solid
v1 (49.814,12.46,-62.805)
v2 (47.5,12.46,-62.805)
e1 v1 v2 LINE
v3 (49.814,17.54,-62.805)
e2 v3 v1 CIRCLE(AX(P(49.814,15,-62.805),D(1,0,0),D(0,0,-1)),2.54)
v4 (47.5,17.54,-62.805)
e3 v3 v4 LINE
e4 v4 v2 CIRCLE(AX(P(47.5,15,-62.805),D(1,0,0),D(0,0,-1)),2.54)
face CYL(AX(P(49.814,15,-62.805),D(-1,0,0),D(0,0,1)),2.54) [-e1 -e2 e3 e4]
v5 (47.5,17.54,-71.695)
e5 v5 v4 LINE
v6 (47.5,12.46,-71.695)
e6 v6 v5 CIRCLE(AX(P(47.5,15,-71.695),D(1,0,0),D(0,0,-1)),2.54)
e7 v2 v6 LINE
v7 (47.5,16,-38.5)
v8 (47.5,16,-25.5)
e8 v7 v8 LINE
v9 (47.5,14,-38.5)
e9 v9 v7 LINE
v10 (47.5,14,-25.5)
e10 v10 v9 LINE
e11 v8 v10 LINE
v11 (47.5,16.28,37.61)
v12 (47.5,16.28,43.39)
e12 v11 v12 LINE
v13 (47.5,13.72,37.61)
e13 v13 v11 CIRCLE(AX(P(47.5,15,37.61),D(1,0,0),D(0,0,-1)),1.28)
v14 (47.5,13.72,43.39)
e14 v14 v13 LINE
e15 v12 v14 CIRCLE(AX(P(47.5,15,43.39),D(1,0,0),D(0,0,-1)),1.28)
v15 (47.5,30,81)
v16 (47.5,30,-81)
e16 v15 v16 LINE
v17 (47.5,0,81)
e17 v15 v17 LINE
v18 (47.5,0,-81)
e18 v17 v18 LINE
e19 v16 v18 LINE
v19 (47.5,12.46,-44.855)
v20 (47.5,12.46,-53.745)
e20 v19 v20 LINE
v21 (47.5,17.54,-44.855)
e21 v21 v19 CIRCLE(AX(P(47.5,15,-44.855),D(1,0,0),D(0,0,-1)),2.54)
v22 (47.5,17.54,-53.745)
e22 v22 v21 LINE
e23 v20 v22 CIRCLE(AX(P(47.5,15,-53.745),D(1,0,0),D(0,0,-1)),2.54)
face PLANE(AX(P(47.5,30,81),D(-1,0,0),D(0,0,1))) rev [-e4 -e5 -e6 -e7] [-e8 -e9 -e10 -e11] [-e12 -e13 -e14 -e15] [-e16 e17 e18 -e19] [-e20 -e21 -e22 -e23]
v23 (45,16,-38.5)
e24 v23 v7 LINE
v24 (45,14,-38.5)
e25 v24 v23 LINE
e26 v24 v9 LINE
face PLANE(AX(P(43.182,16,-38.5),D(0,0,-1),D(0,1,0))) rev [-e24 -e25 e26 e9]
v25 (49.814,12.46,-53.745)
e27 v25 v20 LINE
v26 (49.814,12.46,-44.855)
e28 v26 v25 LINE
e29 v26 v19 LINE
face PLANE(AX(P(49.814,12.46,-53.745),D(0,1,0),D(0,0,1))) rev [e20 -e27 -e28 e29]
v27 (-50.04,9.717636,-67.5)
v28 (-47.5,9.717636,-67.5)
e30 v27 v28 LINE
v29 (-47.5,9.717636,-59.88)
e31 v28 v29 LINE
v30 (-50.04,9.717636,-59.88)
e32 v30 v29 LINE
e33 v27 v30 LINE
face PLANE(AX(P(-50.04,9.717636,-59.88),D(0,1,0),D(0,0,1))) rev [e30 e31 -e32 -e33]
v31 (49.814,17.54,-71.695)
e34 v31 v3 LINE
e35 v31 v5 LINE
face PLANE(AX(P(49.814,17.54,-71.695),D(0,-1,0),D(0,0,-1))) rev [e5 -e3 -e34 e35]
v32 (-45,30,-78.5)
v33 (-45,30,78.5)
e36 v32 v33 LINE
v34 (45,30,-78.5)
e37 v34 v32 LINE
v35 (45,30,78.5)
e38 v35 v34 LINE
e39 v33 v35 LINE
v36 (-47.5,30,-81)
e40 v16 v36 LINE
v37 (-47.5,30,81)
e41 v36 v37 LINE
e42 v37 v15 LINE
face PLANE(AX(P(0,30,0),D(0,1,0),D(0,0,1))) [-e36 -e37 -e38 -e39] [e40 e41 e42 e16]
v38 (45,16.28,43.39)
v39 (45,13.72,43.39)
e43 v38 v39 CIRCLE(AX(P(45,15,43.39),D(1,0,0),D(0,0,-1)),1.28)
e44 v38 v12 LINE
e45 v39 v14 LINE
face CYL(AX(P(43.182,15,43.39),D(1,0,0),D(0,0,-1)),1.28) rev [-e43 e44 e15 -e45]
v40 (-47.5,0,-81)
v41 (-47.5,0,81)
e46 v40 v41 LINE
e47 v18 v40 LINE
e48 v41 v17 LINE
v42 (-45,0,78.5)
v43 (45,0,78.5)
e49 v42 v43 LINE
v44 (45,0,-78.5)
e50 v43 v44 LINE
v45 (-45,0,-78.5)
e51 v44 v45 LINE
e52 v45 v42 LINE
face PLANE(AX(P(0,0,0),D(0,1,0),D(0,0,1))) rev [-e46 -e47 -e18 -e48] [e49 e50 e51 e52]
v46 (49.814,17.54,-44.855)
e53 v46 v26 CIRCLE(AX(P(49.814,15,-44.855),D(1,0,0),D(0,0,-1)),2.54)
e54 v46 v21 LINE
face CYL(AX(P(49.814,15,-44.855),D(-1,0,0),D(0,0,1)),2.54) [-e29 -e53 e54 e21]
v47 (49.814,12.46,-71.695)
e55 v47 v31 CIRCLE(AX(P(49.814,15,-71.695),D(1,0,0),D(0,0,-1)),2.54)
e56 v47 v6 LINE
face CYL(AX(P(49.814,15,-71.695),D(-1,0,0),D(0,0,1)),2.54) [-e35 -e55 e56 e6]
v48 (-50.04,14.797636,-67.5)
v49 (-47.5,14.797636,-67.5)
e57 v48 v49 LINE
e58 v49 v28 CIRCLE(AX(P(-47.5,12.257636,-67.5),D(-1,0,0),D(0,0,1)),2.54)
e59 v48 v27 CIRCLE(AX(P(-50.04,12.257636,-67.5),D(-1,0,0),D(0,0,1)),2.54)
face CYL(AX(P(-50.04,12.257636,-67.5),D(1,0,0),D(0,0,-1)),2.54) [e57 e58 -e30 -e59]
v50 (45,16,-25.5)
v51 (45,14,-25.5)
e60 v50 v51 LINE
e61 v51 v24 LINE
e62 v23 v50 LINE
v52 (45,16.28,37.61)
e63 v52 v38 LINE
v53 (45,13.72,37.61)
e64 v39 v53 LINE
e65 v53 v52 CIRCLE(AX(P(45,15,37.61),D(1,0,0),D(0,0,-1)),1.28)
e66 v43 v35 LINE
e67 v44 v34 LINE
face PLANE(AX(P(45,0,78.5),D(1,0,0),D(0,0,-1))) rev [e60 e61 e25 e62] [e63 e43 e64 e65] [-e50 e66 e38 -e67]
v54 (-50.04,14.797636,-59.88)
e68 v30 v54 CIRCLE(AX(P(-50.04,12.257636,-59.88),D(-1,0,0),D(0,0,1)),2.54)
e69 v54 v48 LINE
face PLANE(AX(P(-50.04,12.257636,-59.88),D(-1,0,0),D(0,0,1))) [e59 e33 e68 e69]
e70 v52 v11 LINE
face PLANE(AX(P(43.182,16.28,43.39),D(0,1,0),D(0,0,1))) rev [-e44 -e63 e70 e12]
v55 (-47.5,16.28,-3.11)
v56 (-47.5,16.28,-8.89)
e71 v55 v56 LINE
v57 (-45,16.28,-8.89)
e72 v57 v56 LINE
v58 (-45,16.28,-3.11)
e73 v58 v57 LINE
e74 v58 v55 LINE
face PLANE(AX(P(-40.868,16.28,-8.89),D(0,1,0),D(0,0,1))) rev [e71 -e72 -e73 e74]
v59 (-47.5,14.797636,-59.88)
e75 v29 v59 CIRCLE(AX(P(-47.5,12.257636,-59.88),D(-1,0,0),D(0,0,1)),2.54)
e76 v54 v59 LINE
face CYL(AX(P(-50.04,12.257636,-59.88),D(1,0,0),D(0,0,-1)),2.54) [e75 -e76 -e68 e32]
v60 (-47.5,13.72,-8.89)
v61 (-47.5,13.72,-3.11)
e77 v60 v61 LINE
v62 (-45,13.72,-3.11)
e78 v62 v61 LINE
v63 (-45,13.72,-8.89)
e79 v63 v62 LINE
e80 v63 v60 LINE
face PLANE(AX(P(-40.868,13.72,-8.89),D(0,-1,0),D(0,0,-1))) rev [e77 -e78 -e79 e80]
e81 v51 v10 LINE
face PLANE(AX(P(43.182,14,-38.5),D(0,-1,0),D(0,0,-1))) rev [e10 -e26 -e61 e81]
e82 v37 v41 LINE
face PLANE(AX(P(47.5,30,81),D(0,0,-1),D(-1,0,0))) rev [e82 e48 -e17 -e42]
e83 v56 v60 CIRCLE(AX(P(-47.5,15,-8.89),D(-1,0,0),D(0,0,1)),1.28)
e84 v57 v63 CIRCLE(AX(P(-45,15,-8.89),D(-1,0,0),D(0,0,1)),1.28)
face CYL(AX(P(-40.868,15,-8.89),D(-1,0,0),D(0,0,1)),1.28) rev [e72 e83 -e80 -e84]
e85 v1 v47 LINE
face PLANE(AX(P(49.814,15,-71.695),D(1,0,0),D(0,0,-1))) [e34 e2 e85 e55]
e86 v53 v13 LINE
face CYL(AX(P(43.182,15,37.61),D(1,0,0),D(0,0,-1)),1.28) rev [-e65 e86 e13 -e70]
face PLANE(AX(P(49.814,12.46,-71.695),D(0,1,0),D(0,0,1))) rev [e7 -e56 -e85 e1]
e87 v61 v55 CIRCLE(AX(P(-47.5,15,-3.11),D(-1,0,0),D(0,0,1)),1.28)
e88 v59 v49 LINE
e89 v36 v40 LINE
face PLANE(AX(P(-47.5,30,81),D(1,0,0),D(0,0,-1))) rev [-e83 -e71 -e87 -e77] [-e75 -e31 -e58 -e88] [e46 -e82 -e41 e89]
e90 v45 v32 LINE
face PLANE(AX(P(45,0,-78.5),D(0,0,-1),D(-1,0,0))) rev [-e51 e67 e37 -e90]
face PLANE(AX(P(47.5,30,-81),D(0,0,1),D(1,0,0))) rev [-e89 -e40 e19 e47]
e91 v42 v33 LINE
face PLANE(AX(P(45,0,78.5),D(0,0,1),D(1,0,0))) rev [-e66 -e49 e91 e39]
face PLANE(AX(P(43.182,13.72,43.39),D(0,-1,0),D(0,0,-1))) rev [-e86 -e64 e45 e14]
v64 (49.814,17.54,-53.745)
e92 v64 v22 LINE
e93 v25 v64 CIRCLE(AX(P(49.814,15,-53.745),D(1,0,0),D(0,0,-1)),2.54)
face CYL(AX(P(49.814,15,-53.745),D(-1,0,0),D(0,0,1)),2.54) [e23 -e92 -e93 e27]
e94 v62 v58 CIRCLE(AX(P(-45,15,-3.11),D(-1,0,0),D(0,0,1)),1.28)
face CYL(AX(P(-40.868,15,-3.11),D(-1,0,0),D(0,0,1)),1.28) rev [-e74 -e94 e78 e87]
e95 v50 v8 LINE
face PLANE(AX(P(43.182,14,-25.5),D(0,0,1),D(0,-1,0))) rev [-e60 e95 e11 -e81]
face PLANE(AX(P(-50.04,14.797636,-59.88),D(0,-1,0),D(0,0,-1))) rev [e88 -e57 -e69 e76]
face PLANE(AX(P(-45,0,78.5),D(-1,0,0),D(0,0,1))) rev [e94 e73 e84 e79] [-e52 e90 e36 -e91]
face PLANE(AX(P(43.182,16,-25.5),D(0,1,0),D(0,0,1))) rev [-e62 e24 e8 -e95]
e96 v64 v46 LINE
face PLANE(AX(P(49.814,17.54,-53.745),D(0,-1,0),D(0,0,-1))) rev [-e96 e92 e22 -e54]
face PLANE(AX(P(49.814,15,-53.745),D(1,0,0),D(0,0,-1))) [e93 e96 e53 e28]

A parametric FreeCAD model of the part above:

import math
import FreeCAD as App
import Part
import Sketcher

doc = App.newDocument("Part")
body = doc.addObject("PartDesign::Body", "Body")

# Sketch on XZ plane
sketch1 = body.newObject("Sketcher::SketchObject", "Sketch")
sketch1.AttachmentSupport = (doc.getObject("XZ_Plane"), [""])
sketch1.MapMode = "FlatFace"
sketch1.addGeometry(Part.LineSegment(App.Vector(-47, -81, 0), App.Vector(-47, 81, 0)), False)
sketch1.addGeometry(Part.LineSegment(App.Vector(-47, 81, 0), App.Vector(47, 81, 0)), False)
sketch1.addGeometry(Part.LineSegment(App.Vector(47, 81, 0), App.Vector(47, -81, 0)), False)
sketch1.addGeometry(Part.LineSegment(App.Vector(47, -81, 0), App.Vector(-47, -81, 0)), False)
sketch1.addConstraint(Sketcher.Constraint("Coincident", 0, 2, 1, 1))
sketch1.addConstraint(Sketcher.Constraint("Coincident", 1, 2, 2, 1))
sketch1.addConstraint(Sketcher.Constraint("Coincident", 2, 2, 3, 1))
sketch1.addConstraint(Sketcher.Constraint("Coincident", 3, 2, 0, 1))
sketch1.addConstraint(Sketcher.Constraint("Vertical", 0))
sketch1.addConstraint(Sketcher.Constraint("Horizontal", 1))
sketch1.addConstraint(Sketcher.Constraint("Vertical", 2))
sketch1.addConstraint(Sketcher.Constraint("Horizontal", 3))
sketch1.addConstraint(Sketcher.Constraint("Symmetric", 0, 2, 2, 2, -1, 1))
sketch1.addConstraint(Sketcher.Constraint("DistanceX", 1, 1, 1, 2, 95.0))
sketch1.addConstraint(Sketcher.Constraint("DistanceY", 0, 1, 0, 2, 162.0))
pad1 = body.newObject("PartDesign::Pad", "Pad")
pad1.Profile = sketch1
pad1.Length = 30
pad1.Reversed = True

# Sketch on XZ plane
sketch2 = body.newObject("Sketcher::SketchObject", "Sketch001")
sketch2.AttachmentSupport = (doc.getObject("XZ_Plane"), [""])
sketch2.MapMode = "FlatFace"
sketch2.AttachmentOffset = App.Placement(App.Vector(0, 0, -30), App.Rotation())
sketch2.addGeometry(Part.LineSegment(App.Vector(-45, -78, 0), App.Vector(-45, 78, 0)), False)
sketch2.addGeometry(Part.LineSegment(App.Vector(-45, 78, 0), App.Vector(45, 78, 0)), False)
sketch2.addGeometry(Part.LineSegment(App.Vector(45, 78, 0), App.Vector(45, -78, 0)), False)
sketch2.addGeometry(Part.LineSegment(App.Vector(45, -78, 0), App.Vector(-45, -78, 0)), False)
sketch2.addConstraint(Sketcher.Constraint("Coincident", 0, 2, 1, 1))
sketch2.addConstraint(Sketcher.Constraint("Coincident", 1, 2, 2, 1))
sketch2.addConstraint(Sketcher.Constraint("Coincident", 2, 2, 3, 1))
sketch2.addConstraint(Sketcher.Constraint("Coincident", 3, 2, 0, 1))
sketch2.addConstraint(Sketcher.Constraint("Vertical", 0))
sketch2.addConstraint(Sketcher.Constraint("Horizontal", 1))
sketch2.addConstraint(Sketcher.Constraint("Vertical", 2))
sketch2.addConstraint(Sketcher.Constraint("Horizontal", 3))
sketch2.addConstraint(Sketcher.Constraint("Symmetric", 0, 2, 2, 2, -1, 1))
sketch2.addConstraint(Sketcher.Constraint("DistanceX", 1, 1, 1, 2, 90.0))
sketch2.addConstraint(Sketcher.Constraint("DistanceY", 0, 1, 0, 2, 157.0))
pocket1 = body.newObject("PartDesign::Pocket", "Pocket")
pocket1.Profile = sketch2
pocket1.Length = 30
pocket1.Reversed = True

# Sketch on YZ plane
sketch3 = body.newObject("Sketcher::SketchObject", "Sketch002")
sketch3.AttachmentSupport = (doc.getObject("YZ_Plane"), [""])
sketch3.MapMode = "FlatFace"
sketch3.AttachmentOffset = App.Placement(App.Vector(0, 0, 47.5), App.Rotation())
sketch3.addGeometry(Part.LineSegment(App.Vector(12.5, -62.8, 0), App.Vector(12.5, -71.7, 0)), False)
sketch3.addGeometry(Part.ArcOfCircle(Part.Circle(App.Vector(15, -71.7, 0), App.Vector(0, 0, 1), 2.5), math.radians(180), math.radians(360)), False)
sketch3.addGeometry(Part.LineSegment(App.Vector(17.5, -71.7, 0), App.Vector(17.5, -62.8, 0)), False)
sketch3.addGeometry(Part.ArcOfCircle(Part.Circle(App.Vector(15, -62.8, 0), App.Vector(0, 0, 1), 2.5), math.radians(0), math.radians(180)), False)
sketch3.addGeometry(Part.LineSegment(App.Vector(12.5, -44.9, 0), App.Vector(12.5, -53.7, 0)), False)
sketch3.addGeometry(Part.ArcOfCircle(Part.Circle(App.Vector(15, -53.7, 0), App.Vector(0, 0, 1), 2.5), math.radians(180), math.radians(360)), False)
sketch3.addGeometry(Part.LineSegment(App.Vector(17.5, -53.7, 0), App.Vector(17.5, -44.9, 0)), False)
sketch3.addGeometry(Part.ArcOfCircle(Part.Circle(App.Vector(15, -44.9, 0), App.Vector(0, 0, 1), 2.5), math.radians(0), math.radians(180)), False)
sketch3.addGeometry(Part.LineSegment(App.Vector(16, -25.5, 0), App.Vector(14, -25.5, 0)), False)
sketch3.addGeometry(Part.LineSegment(App.Vector(14, -25.5, 0), App.Vector(14, -38.5, 0)), False)
sketch3.addGeometry(Part.LineSegment(App.Vector(14, -38.5, 0), App.Vector(16, -38.5, 0)), False)
sketch3.addGeometry(Part.LineSegment(App.Vector(16, -38.5, 0), App.Vector(16, -25.5, 0)), False)
sketch3.addGeometry(Part.LineSegment(App.Vector(13.7, 43.4, 0), App.Vector(13.7, 37.6, 0)), False)
sketch3.addGeometry(Part.ArcOfCircle(Part.Circle(App.Vector(15, 37.6, 0), App.Vector(0, 0, 1), 1.3), math.radians(180), math.radians(360)), False)
sketch3.addGeometry(Part.LineSegment(App.Vector(16.3, 37.6, 0), App.Vector(16.3, 43.4, 0)), False)
sketch3.addGeometry(Part.ArcOfCircle(Part.Circle(App.Vector(15, 43.4, 0), App.Vector(0, 0, 1), 1.3), math.radians(0), math.radians(180)), False)
sketch3.addConstraint(Sketcher.Constraint("Tangent", 0, 2, 1, 1))
sketch3.addConstraint(Sketcher.Constraint("Tangent", 1, 2, 2, 1))
sketch3.addConstraint(Sketcher.Constraint("Tangent", 2, 2, 3, 1))
sketch3.addConstraint(Sketcher.Constraint("Tangent", 3, 2, 0, 1))
sketch3.addConstraint(Sketcher.Constraint("Tangent", 4, 2, 5, 1))
sketch3.addConstraint(Sketcher.Constraint("Tangent", 5, 2, 6, 1))
sketch3.addConstraint(Sketcher.Constraint("Tangent", 6, 2, 7, 1))
sketch3.addConstraint(Sketcher.Constraint("Tangent", 7, 2, 4, 1))
sketch3.addConstraint(Sketcher.Constraint("Coincident", 8, 2, 9, 1))
sketch3.addConstraint(Sketcher.Constraint("Coincident", 9, 2, 10, 1))
sketch3.addConstraint(Sketcher.Constraint("Coincident", 10, 2, 11, 1))
sketch3.addConstraint(Sketcher.Constraint("Coincident", 11, 2, 8, 1))
sketch3.addConstraint(Sketcher.Constraint("Tangent", 12, 2, 13, 1))
sketch3.addConstraint(Sketcher.Constraint("Tangent", 13, 2, 14, 1))
sketch3.addConstraint(Sketcher.Constraint("Tangent", 14, 2, 15, 1))
sketch3.addConstraint(Sketcher.Constraint("Tangent", 15, 2, 12, 1))
sketch3.addConstraint(Sketcher.Constraint("Vertical", 0))
sketch3.addConstraint(Sketcher.Constraint("Vertical", 2))
sketch3.addConstraint(Sketcher.Constraint("Vertical", 4))
sketch3.addConstraint(Sketcher.Constraint("Vertical", 6))
sketch3.addConstraint(Sketcher.Constraint("Horizontal", 8))
sketch3.addConstraint(Sketcher.Constraint("Vertical", 9))
sketch3.addConstraint(Sketcher.Constraint("Horizontal", 10))
sketch3.addConstraint(Sketcher.Constraint("Vertical", 11))
sketch3.addConstraint(Sketcher.Constraint("Vertical", 12))
sketch3.addConstraint(Sketcher.Constraint("Vertical", 14))
sketch3.addConstraint(Sketcher.Constraint("Equal", 3, 5))
sketch3.addConstraint(Sketcher.Constraint("Vertical", 3, 3, 5, 3))
sketch3.addConstraint(Sketcher.Constraint("Vertical", 7, 3, 13, 3))
sketch3.addConstraint(Sketcher.Constraint("Equal", 2, 4))
sketch3.addConstraint(Sketcher.Constraint("DistanceX", 8, 2, 8, 1, 2.0))
sketch3.addConstraint(Sketcher.Constraint("DistanceY", 9, 2, 9, 1, 13.0))
sketch3.addConstraint(Sketcher.Constraint("Radius", 1, 2.54))
sketch3.addConstraint(Sketcher.Constraint("Radius", 13, 1.28))
sketch3.addConstraint(Sketcher.Constraint("DistanceX", -1, 1, 1, 3, 15.0))
sketch3.addConstraint(Sketcher.Constraint("DistanceX", -1, 1, 8, 2, 14.0))
sketch3.addConstraint(Sketcher.Constraint("DistanceY", 0, 2, 0, 1, 8.89))
sketch3.addConstraint(Sketcher.Constraint("DistanceY", 12, 2, 12, 1, 5.78))
sketch3.addConstraint(Sketcher.Constraint("DistanceY", 8, 2, -1, 1, 25.5))
sketch3.addConstraint(Sketcher.Constraint("DistanceY", -1, 1, 13, 3, 37.61))
sketch3.addConstraint(Sketcher.Constraint("DistanceY", 3, 3, 5, 3, 9.06))
sketch3.addConstraint(Sketcher.Constraint("DistanceY", 1, 3, -1, 1, 71.695))
pad2 = body.newObject("PartDesign::Pad", "Pad001")
pad2.Profile = sketch3
pad2.Length = 2.314

# Sketch on YZ plane
sketch4 = body.newObject("Sketcher::SketchObject", "Sketch003")
sketch4.AttachmentSupport = (doc.getObject("YZ_Plane"), [""])
sketch4.MapMode = "FlatFace"
sketch4.AttachmentOffset = App.Placement(App.Vector(0, 0, 49.814), App.Rotation())
sketch4.addGeometry(Part.LineSegment(App.Vector(16, -25.5, 0), App.Vector(14, -25.5, 0)), False)
sketch4.addGeometry(Part.LineSegment(App.Vector(14, -25.5, 0), App.Vector(14, -38.5, 0)), False)
sketch4.addGeometry(Part.LineSegment(App.Vector(14, -38.5, 0), App.Vector(16, -38.5, 0)), False)
sketch4.addGeometry(Part.LineSegment(App.Vector(16, -38.5, 0), App.Vector(16, -25.5, 0)), False)
sketch4.addConstraint(Sketcher.Constraint("Coincident", 0, 2, 1, 1))
sketch4.addConstraint(Sketcher.Constraint("Coincident", 1, 2, 2, 1))
sketch4.addConstraint(Sketcher.Constraint("Coincident", 2, 2, 3, 1))
sketch4.addConstraint(Sketcher.Constraint("Coincident", 3, 2, 0, 1))
sketch4.addConstraint(Sketcher.Constraint("Horizontal", 0))
sketch4.addConstraint(Sketcher.Constraint("Vertical", 1))
sketch4.addConstraint(Sketcher.Constraint("Horizontal", 2))
sketch4.addConstraint(Sketcher.Constraint("Vertical", 3))
sketch4.addConstraint(Sketcher.Constraint("DistanceX", 0, 2, 0, 1, 2.0))
sketch4.addConstraint(Sketcher.Constraint("DistanceY", 1, 2, 1, 1, 13.0))
sketch4.addConstraint(Sketcher.Constraint("DistanceX", -1, 1, 0, 2, 14.0))
sketch4.addConstraint(Sketcher.Constraint("DistanceY", 0, 2, -1, 1, 25.5))
pocket2 = body.newObject("PartDesign::Pocket", "Pocket001")
pocket2.Profile = sketch4
pocket2.Length = 6.632

# Sketch on YZ plane
sketch5 = body.newObject("Sketcher::SketchObject", "Sketch004")
sketch5.AttachmentSupport = (doc.getObject("YZ_Plane"), [""])
sketch5.MapMode = "FlatFace"
sketch5.AttachmentOffset = App.Placement(App.Vector(0, 0, 43.182), App.Rotation())
sketch5.addGeometry(Part.LineSegment(App.Vector(16.3, 37.6, 0), App.Vector(16.3, 43.4, 0)), False)
sketch5.addGeometry(Part.ArcOfCircle(Part.Circle(App.Vector(15, 43.4, 0), App.Vector(0, 0, 1), 1.3), math.radians(0), math.radians(90)), False)
sketch5.addGeometry(Part.ArcOfCircle(Part.Circle(App.Vector(15, 43.4, 0), App.Vector(0, 0, 1), 1.3), math.radians(90), math.radians(180)), False)
sketch5.addGeometry(Part.LineSegment(App.Vector(13.7, 43.4, 0), App.Vector(13.7, 37.6, 0)), False)
sketch5.addGeometry(Part.ArcOfCircle(Part.Circle(App.Vector(15, 37.6, 0), App.Vector(0, 0, 1), 1.3), math.radians(180), math.radians(270)), False)
sketch5.addGeometry(Part.ArcOfCircle(Part.Circle(App.Vector(15, 37.6, 0), App.Vector(0, 0, 1), 1.3), math.radians(-90), math.radians(0)), False)
sketch5.addConstraint(Sketcher.Constraint("Tangent", 0, 2, 1, 1))
sketch5.addConstraint(Sketcher.Constraint("Tangent", 1, 2, 2, 1))
sketch5.addConstraint(Sketcher.Constraint("Tangent", 2, 2, 3, 1))
sketch5.addConstraint(Sketcher.Constraint("Tangent", 3, 2, 4, 1))
sketch5.addConstraint(Sketcher.Constraint("Tangent", 4, 2, 5, 1))
sketch5.addConstraint(Sketcher.Constraint("Tangent", 5, 2, 0, 1))
sketch5.addConstraint(Sketcher.Constraint("Vertical", 0))
sketch5.addConstraint(Sketcher.Constraint("Vertical", 3))
sketch5.addConstraint(Sketcher.Constraint("Equal", 1, 2))
sketch5.addConstraint(Sketcher.Constraint("Equal", 2, 4))
sketch5.addConstraint(Sketcher.Constraint("Vertical", 5, 3, 1, 2))
sketch5.addConstraint(Sketcher.Constraint("Vertical", 1, 2, 4, 2))
sketch5.addConstraint(Sketcher.Constraint("Radius", 1, 1.28))
sketch5.addConstraint(Sketcher.Constraint("DistanceX", -1, 1, 1, 3, 15.0))
sketch5.addConstraint(Sketcher.Constraint("DistanceY", 0, 1, 0, 2, 5.78))
sketch5.addConstraint(Sketcher.Constraint("DistanceY", -1, 1, 1, 3, 43.39))
pocket3 = body.newObject("PartDesign::Pocket", "Pocket002")
pocket3.Profile = sketch5
pocket3.Length = 6.632
pocket3.Reversed = True

# Sketch on YZ plane
sketch6 = body.newObject("Sketcher::SketchObject", "Sketch005")
sketch6.AttachmentSupport = (doc.getObject("YZ_Plane"), [""])
sketch6.MapMode = "FlatFace"
sketch6.AttachmentOffset = App.Placement(App.Vector(0, 0, -47.5), App.Rotation())
sketch6.addGeometry(Part.LineSegment(App.Vector(16.3, -3.1, 0), App.Vector(16.3, -8.9, 0)), False)
sketch6.addGeometry(Part.ArcOfCircle(Part.Circle(App.Vector(15, -8.9, 0), App.Vector(0, 0, 1), 1.3), math.radians(180), math.radians(360)), False)
sketch6.addGeometry(Part.LineSegment(App.Vector(13.7, -8.9, 0), App.Vector(13.7, -3.1, 0)), False)
sketch6.addGeometry(Part.ArcOfCircle(Part.Circle(App.Vector(15, -3.1, 0), App.Vector(0, 0, 1), 1.3), math.radians(0), math.radians(180)), False)
sketch6.addConstraint(Sketcher.Constraint("Tangent", 0, 2, 1, 2))
sketch6.addConstraint(Sketcher.Constraint("Tangent", 1, 1, 2, 1))
sketch6.addConstraint(Sketcher.Constraint("Tangent", 2, 2, 3, 2))
sketch6.addConstraint(Sketcher.Constraint("Tangent", 3, 1, 0, 1))
sketch6.addConstraint(Sketcher.Constraint("Vertical", 0))
sketch6.addConstraint(Sketcher.Constraint("Vertical", 2))
sketch6.addConstraint(Sketcher.Constraint("Radius", 1, 1.28))
sketch6.addConstraint(Sketcher.Constraint("DistanceX", -1, 1, 1, 3, 15.0))
sketch6.addConstraint(Sketcher.Constraint("DistanceY", 0, 2, 0, 1, 5.78))
sketch6.addConstraint(Sketcher.Constraint("DistanceY", 1, 3, -1, 1, 8.89))
pocket4 = body.newObject("PartDesign::Pocket", "Pocket003")
pocket4.Profile = sketch6
pocket4.Length = 6.632
pocket4.Reversed = True

# Sketch on YZ plane
sketch7 = body.newObject("Sketcher::SketchObject", "Sketch006")
sketch7.AttachmentSupport = (doc.getObject("YZ_Plane"), [""])
sketch7.MapMode = "FlatFace"
sketch7.AttachmentOffset = App.Placement(App.Vector(0, 0, -47.5), App.Rotation())
sketch7.addGeometry(Part.LineSegment(App.Vector(9.7, -67.5, 0), App.Vector(9.7, -59.9, 0)), False)
sketch7.addGeometry(Part.ArcOfCircle(Part.Circle(App.Vector(12.3, -59.9, 0), App.Vector(0, 0, 1), 2.5), math.radians(0), math.radians(180)), False)
sketch7.addGeometry(Part.LineSegment(App.Vector(14.8, -59.9, 0), App.Vector(14.8, -67.5, 0)), False)
sketch7.addGeometry(Part.ArcOfCircle(Part.Circle(App.Vector(12.3, -67.5, 0), App.Vector(0, 0, 1), 2.5), math.radians(180), math.radians(360)), False)
sketch7.addConstraint(Sketcher.Constraint("Tangent", 0, 2, 1, 2))
sketch7.addConstraint(Sketcher.Constraint("Tangent", 1, 1, 2, 1))
sketch7.addConstraint(Sketcher.Constraint("Tangent", 2, 2, 3, 2))
sketch7.addConstraint(Sketcher.Constraint("Tangent", 3, 1, 0, 1))
sketch7.addConstraint(Sketcher.Constraint("Vertical", 0))
sketch7.addConstraint(Sketcher.Constraint("Vertical", 2))
sketch7.addConstraint(Sketcher.Constraint("Radius", 1, 2.54))
sketch7.addConstraint(Sketcher.Constraint("DistanceY", 0, 1, 0, 2, 7.62))
sketch7.addConstraint(Sketcher.Constraint("DistanceY", 3, 3, -1, 1, 67.5))
sketch7.addConstraint(Sketcher.Constraint("DistanceX", -1, 1, 1, 3, 12.257636))
pad3 = body.newObject("PartDesign::Pad", "Pad002")
pad3.Profile = sketch7
pad3.Length = 2.54
pad3.Reversed = True

doc.recompute()
